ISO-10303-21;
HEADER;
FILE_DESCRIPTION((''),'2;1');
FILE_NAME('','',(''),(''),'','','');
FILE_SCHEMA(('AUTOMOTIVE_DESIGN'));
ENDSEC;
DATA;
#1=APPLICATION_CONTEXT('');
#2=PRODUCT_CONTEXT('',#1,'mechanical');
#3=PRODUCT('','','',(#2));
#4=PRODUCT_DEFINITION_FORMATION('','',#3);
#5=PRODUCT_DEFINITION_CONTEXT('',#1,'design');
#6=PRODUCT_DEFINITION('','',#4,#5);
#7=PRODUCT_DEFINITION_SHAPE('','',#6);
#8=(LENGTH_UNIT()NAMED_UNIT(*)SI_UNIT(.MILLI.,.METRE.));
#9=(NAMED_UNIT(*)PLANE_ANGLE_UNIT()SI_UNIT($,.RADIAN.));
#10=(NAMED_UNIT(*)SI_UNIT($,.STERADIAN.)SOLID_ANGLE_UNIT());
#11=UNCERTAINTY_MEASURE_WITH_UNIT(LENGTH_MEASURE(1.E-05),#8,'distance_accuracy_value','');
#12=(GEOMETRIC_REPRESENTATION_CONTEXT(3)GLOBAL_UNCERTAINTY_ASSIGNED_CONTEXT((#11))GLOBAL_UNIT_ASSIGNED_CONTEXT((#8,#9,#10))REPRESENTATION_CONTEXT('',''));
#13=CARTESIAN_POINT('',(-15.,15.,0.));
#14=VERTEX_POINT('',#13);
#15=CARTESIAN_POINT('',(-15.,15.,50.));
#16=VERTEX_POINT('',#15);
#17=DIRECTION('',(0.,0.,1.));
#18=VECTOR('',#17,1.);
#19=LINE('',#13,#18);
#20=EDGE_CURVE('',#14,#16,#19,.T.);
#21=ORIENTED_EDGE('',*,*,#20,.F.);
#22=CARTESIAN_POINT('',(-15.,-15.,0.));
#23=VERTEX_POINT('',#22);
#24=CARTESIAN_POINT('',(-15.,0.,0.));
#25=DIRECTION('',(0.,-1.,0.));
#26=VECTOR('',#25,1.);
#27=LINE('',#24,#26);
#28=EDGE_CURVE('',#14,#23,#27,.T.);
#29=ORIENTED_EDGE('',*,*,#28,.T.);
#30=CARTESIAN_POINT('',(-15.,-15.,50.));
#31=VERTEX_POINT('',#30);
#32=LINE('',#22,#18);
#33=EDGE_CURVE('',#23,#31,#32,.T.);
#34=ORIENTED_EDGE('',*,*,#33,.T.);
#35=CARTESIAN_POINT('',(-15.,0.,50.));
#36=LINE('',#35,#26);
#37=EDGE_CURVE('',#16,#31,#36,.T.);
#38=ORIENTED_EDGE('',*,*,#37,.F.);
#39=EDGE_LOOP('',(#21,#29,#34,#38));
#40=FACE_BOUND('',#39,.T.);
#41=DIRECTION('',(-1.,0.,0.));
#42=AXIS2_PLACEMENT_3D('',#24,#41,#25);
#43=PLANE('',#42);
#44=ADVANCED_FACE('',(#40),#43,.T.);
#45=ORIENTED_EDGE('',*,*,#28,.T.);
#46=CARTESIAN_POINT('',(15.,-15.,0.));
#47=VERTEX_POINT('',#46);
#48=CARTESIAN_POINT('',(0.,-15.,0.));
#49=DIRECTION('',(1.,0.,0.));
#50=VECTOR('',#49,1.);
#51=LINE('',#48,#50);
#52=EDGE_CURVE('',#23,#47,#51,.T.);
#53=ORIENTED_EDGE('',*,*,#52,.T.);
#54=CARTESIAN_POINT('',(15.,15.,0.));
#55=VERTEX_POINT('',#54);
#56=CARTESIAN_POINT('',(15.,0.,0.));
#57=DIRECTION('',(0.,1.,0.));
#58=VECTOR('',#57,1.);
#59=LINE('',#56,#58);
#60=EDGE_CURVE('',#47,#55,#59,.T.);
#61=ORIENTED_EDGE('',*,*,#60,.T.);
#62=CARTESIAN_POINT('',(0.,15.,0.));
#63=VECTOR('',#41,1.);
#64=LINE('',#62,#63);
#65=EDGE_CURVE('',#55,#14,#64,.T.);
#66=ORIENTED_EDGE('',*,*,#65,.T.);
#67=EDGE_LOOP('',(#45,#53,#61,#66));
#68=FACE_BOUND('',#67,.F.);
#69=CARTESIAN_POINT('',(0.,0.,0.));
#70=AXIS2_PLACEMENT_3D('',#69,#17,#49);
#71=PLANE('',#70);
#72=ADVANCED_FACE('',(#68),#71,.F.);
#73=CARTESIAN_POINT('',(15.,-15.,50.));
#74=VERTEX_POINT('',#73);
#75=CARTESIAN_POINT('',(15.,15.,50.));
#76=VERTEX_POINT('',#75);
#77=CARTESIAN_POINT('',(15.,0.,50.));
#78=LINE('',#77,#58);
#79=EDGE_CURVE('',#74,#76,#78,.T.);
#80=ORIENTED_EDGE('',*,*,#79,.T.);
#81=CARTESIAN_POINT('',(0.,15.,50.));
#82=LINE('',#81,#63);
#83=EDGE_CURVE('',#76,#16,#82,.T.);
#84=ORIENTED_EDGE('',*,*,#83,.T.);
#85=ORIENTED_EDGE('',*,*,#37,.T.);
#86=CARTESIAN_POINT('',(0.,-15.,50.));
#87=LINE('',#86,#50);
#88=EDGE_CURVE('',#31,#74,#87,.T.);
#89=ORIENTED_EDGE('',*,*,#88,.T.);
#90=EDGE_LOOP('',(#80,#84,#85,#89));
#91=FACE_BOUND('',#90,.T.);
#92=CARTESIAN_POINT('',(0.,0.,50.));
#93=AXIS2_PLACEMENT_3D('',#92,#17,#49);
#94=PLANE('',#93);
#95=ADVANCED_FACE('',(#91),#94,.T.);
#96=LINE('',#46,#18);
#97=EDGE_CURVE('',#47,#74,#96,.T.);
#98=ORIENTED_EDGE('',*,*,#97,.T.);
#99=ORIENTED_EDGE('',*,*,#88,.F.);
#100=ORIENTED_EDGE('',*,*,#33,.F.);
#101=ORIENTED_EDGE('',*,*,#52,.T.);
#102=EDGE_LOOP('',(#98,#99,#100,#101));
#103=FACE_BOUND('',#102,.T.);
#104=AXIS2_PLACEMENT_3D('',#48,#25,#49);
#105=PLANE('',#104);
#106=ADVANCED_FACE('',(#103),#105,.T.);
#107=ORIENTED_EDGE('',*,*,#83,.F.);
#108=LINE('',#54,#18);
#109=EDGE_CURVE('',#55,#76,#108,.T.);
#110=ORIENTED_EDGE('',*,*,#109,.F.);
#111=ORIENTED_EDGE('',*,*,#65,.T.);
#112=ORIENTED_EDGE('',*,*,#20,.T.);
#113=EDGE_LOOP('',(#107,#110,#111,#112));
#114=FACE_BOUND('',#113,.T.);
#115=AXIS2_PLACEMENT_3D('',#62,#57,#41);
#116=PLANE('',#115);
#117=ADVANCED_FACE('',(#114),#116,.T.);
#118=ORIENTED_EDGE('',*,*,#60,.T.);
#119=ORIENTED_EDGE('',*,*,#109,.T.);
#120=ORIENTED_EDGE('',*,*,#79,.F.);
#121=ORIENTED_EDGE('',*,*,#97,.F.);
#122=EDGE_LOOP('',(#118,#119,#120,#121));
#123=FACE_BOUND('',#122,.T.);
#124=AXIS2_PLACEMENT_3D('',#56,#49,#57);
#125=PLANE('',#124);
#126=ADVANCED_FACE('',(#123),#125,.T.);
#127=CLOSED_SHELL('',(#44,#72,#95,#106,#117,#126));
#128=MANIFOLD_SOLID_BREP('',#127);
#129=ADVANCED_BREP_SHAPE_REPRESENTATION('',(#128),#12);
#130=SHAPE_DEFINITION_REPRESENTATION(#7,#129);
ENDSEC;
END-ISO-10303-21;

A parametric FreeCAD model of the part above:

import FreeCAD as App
import Part
import Sketcher
Q = App.Units.Quantity


def add_polygon(sketch, points):
    """Adds a closed chain of lines whose ends are joined by coincident constraints."""
    first, n = sketch.GeometryCount, len(points)
    for a, b in zip(points, points[1:] + points[:1]):
        sketch.addGeometry(Part.LineSegment(App.Vector(*a, 0), App.Vector(*b, 0)), False)
    for i in range(n):
        sketch.addConstraint(Sketcher.Constraint("Coincident", first + i, 2, first + (i + 1) % n, 1))

doc = App.newDocument("Part")
body = doc.addObject("PartDesign::Body", "Body")

# Sketch on XY plane
sketch1 = body.newObject("Sketcher::SketchObject", "Sketch")
sketch1.AttachmentSupport = (doc.getObject("XY_Plane"), [""])
sketch1.MapMode = "FlatFace"
add_polygon(sketch1, [(-15, 15), (-15, -15), (15, -15), (15, 15)])  # lines 0-3
sketch1.addConstraint([
    Sketcher.Constraint("Vertical", 0),
    Sketcher.Constraint("Horizontal", 1),
    Sketcher.Constraint("Vertical", 2),
    Sketcher.Constraint("Horizontal", 3),
    Sketcher.Constraint("Symmetric", 0, 2, 2, 2, -1, 1),
    Sketcher.Constraint("Equal", 3, 0),
    Sketcher.Constraint("DistanceX", 1, 1, 1, 2, Q("30 mm")),
])

# Sketch on XZ plane
sketch2 = body.newObject("Sketcher::SketchObject", "Sketch001")
sketch2.AttachmentSupport = (doc.getObject("XZ_Plane"), [""])
sketch2.MapMode = "FlatFace"
sketch2.addGeometry(Part.LineSegment(App.Vector(0, 0, 0), App.Vector(0, 50, 0)), False)
sketch2.addConstraint([
    Sketcher.Constraint("Vertical", 0),
    Sketcher.Constraint("Coincident", 0, 1, -1, 1),
    Sketcher.Constraint("DistanceY", 0, 1, 0, 2, Q("50 mm")),
])
doc.recompute()

additivepipe = body.newObject("PartDesign::AdditivePipe", "AdditivePipe")
additivepipe.Profile = sketch1
additivepipe.Spine = (sketch2, ["Edge1"])

doc.recompute()
